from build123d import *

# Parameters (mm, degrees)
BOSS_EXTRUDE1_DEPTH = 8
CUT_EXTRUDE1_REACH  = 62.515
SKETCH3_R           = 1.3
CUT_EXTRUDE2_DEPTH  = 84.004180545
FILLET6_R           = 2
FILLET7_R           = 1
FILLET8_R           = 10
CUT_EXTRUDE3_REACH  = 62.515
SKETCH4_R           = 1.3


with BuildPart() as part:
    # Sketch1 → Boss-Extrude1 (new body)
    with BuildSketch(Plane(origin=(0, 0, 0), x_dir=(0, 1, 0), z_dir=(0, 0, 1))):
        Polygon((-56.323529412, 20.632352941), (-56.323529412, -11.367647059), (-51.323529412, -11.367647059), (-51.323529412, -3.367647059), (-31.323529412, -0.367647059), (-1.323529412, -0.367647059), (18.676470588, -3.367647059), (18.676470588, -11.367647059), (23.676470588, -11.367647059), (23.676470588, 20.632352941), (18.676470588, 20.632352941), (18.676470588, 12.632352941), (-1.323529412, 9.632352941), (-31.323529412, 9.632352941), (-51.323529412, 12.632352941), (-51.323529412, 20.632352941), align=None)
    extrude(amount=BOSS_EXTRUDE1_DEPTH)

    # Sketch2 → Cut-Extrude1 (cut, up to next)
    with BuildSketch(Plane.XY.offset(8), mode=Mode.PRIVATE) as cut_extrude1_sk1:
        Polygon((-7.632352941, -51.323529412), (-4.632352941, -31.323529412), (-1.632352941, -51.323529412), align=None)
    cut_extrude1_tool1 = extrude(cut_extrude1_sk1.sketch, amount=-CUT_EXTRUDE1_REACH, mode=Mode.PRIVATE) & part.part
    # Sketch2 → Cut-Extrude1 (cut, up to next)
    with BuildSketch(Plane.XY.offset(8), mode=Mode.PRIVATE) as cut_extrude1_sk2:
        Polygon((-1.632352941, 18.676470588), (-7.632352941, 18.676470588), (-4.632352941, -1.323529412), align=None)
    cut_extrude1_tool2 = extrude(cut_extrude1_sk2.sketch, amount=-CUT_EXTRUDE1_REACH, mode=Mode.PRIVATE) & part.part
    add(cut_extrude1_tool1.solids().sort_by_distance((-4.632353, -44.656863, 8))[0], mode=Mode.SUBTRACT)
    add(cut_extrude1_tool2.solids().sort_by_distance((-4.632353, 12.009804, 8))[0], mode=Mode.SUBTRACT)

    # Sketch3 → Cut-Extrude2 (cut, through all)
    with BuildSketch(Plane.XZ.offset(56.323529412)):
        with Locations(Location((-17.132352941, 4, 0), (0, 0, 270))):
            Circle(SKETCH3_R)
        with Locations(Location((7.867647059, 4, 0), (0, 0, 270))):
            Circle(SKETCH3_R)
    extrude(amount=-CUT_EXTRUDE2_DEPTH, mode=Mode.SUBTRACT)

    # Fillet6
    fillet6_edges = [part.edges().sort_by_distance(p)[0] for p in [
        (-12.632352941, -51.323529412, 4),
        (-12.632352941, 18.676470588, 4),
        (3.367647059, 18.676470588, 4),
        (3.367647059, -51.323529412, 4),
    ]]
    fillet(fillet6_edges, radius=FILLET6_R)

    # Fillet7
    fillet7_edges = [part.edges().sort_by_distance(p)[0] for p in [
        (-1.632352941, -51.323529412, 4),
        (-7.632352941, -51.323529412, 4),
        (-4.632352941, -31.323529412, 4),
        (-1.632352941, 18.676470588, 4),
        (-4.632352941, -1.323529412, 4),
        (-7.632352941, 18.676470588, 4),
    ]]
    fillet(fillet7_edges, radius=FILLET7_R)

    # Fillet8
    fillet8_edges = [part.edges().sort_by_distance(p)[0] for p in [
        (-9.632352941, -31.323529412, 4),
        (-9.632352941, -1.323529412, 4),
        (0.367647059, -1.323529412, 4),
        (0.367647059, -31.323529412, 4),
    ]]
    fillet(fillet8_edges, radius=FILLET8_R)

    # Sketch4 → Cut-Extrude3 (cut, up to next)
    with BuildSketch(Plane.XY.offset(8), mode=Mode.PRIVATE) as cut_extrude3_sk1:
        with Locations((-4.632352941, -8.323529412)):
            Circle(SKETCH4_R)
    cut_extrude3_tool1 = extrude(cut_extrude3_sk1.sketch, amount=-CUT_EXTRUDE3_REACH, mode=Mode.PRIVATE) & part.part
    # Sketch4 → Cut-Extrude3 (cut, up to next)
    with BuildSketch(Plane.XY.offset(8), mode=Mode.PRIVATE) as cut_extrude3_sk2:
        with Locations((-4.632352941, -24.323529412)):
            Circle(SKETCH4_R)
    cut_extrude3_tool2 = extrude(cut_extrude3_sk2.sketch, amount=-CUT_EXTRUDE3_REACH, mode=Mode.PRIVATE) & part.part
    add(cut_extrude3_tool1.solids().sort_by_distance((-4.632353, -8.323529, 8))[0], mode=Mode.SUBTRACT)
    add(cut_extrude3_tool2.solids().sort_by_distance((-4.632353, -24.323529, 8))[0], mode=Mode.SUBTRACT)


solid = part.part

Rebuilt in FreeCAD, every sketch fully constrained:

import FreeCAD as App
import Part
import Sketcher

V = App.Vector
Q = App.Units.Quantity


def edges_at(feature, points):
    """Names of the edges that pass closest to the given points."""
    edges = feature.Shape.Edges
    near = lambda p: min(range(len(edges)), key=lambda i: edges[i].distToShape(Part.Vertex(*p))[0])
    return sorted({f"Edge{near(p) + 1}" for p in points})


def add_polygon(sketch, points):
    """Adds a closed chain of lines whose ends are joined by coincident constraints."""
    first, n = sketch.GeometryCount, len(points)
    for a, b in zip(points, points[1:] + points[:1]):
        sketch.addGeometry(Part.LineSegment(App.Vector(*a, 0), App.Vector(*b, 0)), False)
    for i in range(n):
        sketch.addConstraint(Sketcher.Constraint("Coincident", first + i, 2, first + (i + 1) % n, 1))

doc = App.newDocument("Part")
body = doc.addObject("PartDesign::Body", "Body")

# Sketch on XY plane
sketch1 = body.newObject("Sketcher::SketchObject", "Sketch")
sketch1.AttachmentSupport = (doc.getObject("XY_Plane"), [""])
sketch1.MapMode = "FlatFace"
add_polygon(sketch1, [(-21, -56), (11, -56), (11, -51), (3, -51), (0, -31), (0, -1), (3, 19), (11, 19), (11, 24), (-21, 24), (-21, 19), (-13, 19), (-10, -1), (-10, -31), (-13, -51), (-21, -51)])  # lines 0-15
sketch1.addConstraint([
    Sketcher.Constraint("Horizontal", 0),
    Sketcher.Constraint("Vertical", 1),
    Sketcher.Constraint("Horizontal", 2),
    Sketcher.Constraint("Vertical", 4),
    Sketcher.Constraint("Horizontal", 6),
    Sketcher.Constraint("Vertical", 7),
    Sketcher.Constraint("Horizontal", 8),
    Sketcher.Constraint("Vertical", 9),
    Sketcher.Constraint("Horizontal", 10),
    Sketcher.Constraint("Vertical", 12),
    Sketcher.Constraint("Horizontal", 14),
    Sketcher.Constraint("Vertical", 15),
    Sketcher.Constraint("Parallel", 3, 11),
    Sketcher.Constraint("Parallel", 5, 13),
    Sketcher.Constraint("Horizontal", 6, 2, 9, 2),
    Sketcher.Constraint("Horizontal", 4, 2, 11, 2),
    Sketcher.Constraint("Horizontal", 3, 2, 12, 2),
    Sketcher.Constraint("Horizontal", 2, 2, 13, 2),
    Sketcher.Constraint("Vertical", 2, 2, 5, 2),
    Sketcher.Constraint("Vertical", 1, 2, 6, 2),
    Sketcher.Constraint("Vertical", 10, 2, 13, 2),
    Sketcher.Constraint("Vertical", 9, 2, 14, 2),
    Sketcher.Constraint("Equal", 6, 10),
    Sketcher.Constraint("Equal", 1, 7),
    Sketcher.Constraint("DistanceX", 0, 1, 0, 2, Q("32 mm")),
    Sketcher.Constraint("DistanceX", 2, 2, 2, 1, Q("8 mm")),
    Sketcher.Constraint("DistanceY", 1, 1, 1, 2, Q("5 mm")),
    Sketcher.Constraint("DistanceY", 4, 1, 4, 2, Q("30 mm")),
    Sketcher.Constraint("DistanceX", 3, 2, 2, 2, Q("3 mm")),
    Sketcher.Constraint("DistanceY", 2, 2, 3, 2, Q("20 mm")),
    Sketcher.Constraint("DistanceY", 0, 2, -1, 1, Q("56.323529 mm")),
    Sketcher.Constraint("DistanceX", -1, 1, 0, 2, Q("11.367647 mm")),
])
pad1 = body.newObject("PartDesign::Pad", "Pad")
pad1.Profile = sketch1
pad1.Length = 8

# Sketch on XY plane
sketch2 = body.newObject("Sketcher::SketchObject", "Sketch001")
sketch2.AttachmentSupport = (doc.getObject("XY_Plane"), [""])
sketch2.MapMode = "FlatFace"
sketch2.AttachmentOffset = App.Placement(V(0, 0, 8), App.Rotation())
add_polygon(sketch2, [(-5, -31), (-8, -51), (-2, -51)])  # lines 0-2
sketch2.addConstraint([
    Sketcher.Constraint("Horizontal", 1),
    Sketcher.Constraint("Equal", 0, 2),
    Sketcher.Constraint("DistanceX", 1, 1, 1, 2, Q("6 mm")),
    Sketcher.Constraint("DistanceY", 0, 2, 2, 2, Q("20 mm")),
    Sketcher.Constraint("DistanceY", 0, 2, -1, 1, Q("51.323529 mm")),
    Sketcher.Constraint("DistanceX", 0, 2, -1, 1, Q("7.632353 mm")),
])
pocket1 = body.newObject("PartDesign::Pocket", "Pocket")
pocket1.Profile = sketch2
pocket1.Type = "UpToFirst"

# Sketch on XY plane
sketch3 = body.newObject("Sketcher::SketchObject", "Sketch002")
sketch3.AttachmentSupport = (doc.getObject("XY_Plane"), [""])
sketch3.MapMode = "FlatFace"
sketch3.AttachmentOffset = App.Placement(V(0, 0, 8), App.Rotation())
add_polygon(sketch3, [(-2, 19), (-8, 19), (-5, -1)])  # lines 0-2
sketch3.addConstraint([
    Sketcher.Constraint("Horizontal", 0),
    Sketcher.Constraint("Equal", 1, 2),
    Sketcher.Constraint("DistanceX", 0, 2, 0, 1, Q("6 mm")),
    Sketcher.Constraint("DistanceY", 1, 2, 0, 2, Q("20 mm")),
    Sketcher.Constraint("DistanceY", -1, 1, 0, 2, Q("18.676471 mm")),
    Sketcher.Constraint("DistanceX", 0, 2, -1, 1, Q("7.632353 mm")),
])
pocket2 = body.newObject("PartDesign::Pocket", "Pocket001")
pocket2.Profile = sketch3
pocket2.Type = "UpToFirst"

# Sketch on XZ plane
sketch4 = body.newObject("Sketcher::SketchObject", "Sketch003")
sketch4.AttachmentSupport = (doc.getObject("XZ_Plane"), [""])
sketch4.MapMode = "FlatFace"
sketch4.AttachmentOffset = App.Placement(V(0, 0, 56.323529), App.Rotation())
sketch4.addGeometry([
    Part.Circle(V(-17.1, 4, 0), V(0, 0, 1), 1.3),
    Part.Circle(V(7.9, 4, 0), V(0, 0, 1), 1.3),
], False)
sketch4.addConstraint([
    Sketcher.Constraint("Equal", 0, 1),
    Sketcher.Constraint("Horizontal", 0, 3, 1, 3),
    Sketcher.Constraint("Diameter", 0, Q("2.6 mm")),
    Sketcher.Constraint("DistanceY", -1, 1, 0, 3, Q("4 mm")),
    Sketcher.Constraint("DistanceX", 0, 3, 1, 3, Q("25 mm")),
    Sketcher.Constraint("DistanceX", 0, 3, -1, 1, Q("17.132353 mm")),
])
pocket3 = body.newObject("PartDesign::Pocket", "Pocket002")
pocket3.Profile = sketch4
pocket3.Type = "ThroughAll"
doc.recompute()

fillet = body.newObject("PartDesign::Fillet", "Fillet")
fillet.Base = (pocket3, edges_at(pocket3, [
    (-12.632, -51.324, 4),
    (-12.632, 18.676, 4),
    (3.368, 18.676, 4),
    (3.368, -51.324, 4),
]))
fillet.Radius = 2
doc.recompute()

fillet2 = body.newObject("PartDesign::Fillet", "Fillet001")
fillet2.Base = (fillet, edges_at(fillet, [
    (-1.632, -51.324, 4),
    (-7.632, -51.324, 4),
    (-4.632, -31.324, 4),
    (-1.632, 18.676, 4),
    (-4.632, -1.324, 4),
    (-7.632, 18.676, 4),
]))
fillet2.Radius = 1
doc.recompute()

fillet3 = body.newObject("PartDesign::Fillet", "Fillet002")
fillet3.Base = (fillet2, edges_at(fillet2, [
    (-9.632, -31.324, 4),
    (-9.632, -1.324, 4),
    (0.368, -1.324, 4),
    (0.368, -31.324, 4),
]))
fillet3.Radius = 10

# Sketch on XY plane
sketch5 = body.newObject("Sketcher::SketchObject", "Sketch004")
sketch5.AttachmentSupport = (doc.getObject("XY_Plane"), [""])
sketch5.MapMode = "FlatFace"
sketch5.AttachmentOffset = App.Placement(V(0, 0, 8), App.Rotation())
sketch5.addGeometry(Part.Circle(V(-4.6, -8.3, 0), V(0, 0, 1), 1.3), False)
sketch5.addConstraint([
    Sketcher.Constraint("Diameter", 0, Q("2.6 mm")),
    Sketcher.Constraint("DistanceY", 0, 3, -1, 1, Q("8.323529 mm")),
    Sketcher.Constraint("DistanceX", 0, 3, -1, 1, Q("4.632353 mm")),
])
pocket4 = body.newObject("PartDesign::Pocket", "Pocket003")
pocket4.Profile = sketch5
pocket4.Type = "UpToFirst"

# Sketch on XY plane
sketch6 = body.newObject("Sketcher::SketchObject", "Sketch005")
sketch6.AttachmentSupport = (doc.getObject("XY_Plane"), [""])
sketch6.MapMode = "FlatFace"
sketch6.AttachmentOffset = App.Placement(V(0, 0, 8), App.Rotation())
sketch6.addGeometry(Part.Circle(V(-4.6, -24.3, 0), V(0, 0, 1), 1.3), False)
sketch6.addConstraint([
    Sketcher.Constraint("Diameter", 0, Q("2.6 mm")),
    Sketcher.Constraint("DistanceY", 0, 3, -1, 1, Q("24.323529 mm")),
    Sketcher.Constraint("DistanceX", 0, 3, -1, 1, Q("4.632353 mm")),
])
pocket5 = body.newObject("PartDesign::Pocket", "Pocket004")
pocket5.Profile = sketch6
pocket5.Type = "UpToFirst"

doc.recompute()
